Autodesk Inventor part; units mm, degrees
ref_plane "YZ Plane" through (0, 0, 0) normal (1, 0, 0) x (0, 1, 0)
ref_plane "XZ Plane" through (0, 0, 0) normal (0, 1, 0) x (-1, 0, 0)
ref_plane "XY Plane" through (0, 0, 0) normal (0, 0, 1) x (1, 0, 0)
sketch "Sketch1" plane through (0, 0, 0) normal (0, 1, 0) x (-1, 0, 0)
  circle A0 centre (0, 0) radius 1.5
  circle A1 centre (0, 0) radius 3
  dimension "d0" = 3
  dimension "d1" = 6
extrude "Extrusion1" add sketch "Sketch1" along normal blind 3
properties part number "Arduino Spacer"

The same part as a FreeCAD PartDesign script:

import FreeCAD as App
import Part
import Sketcher
Q = App.Units.Quantity

doc = App.newDocument("Part")
body = doc.addObject("PartDesign::Body", "Body")

# Sketch on XZ plane
sketch1 = body.newObject("Sketcher::SketchObject", "Sketch")
sketch1.AttachmentSupport = (doc.getObject("XZ_Plane"), [""])
sketch1.MapMode = "FlatFace"
sketch1.addGeometry(Part.Circle(App.Vector(0, 0, 0), App.Vector(0, 0, 1), 3), False)
sketch1.addGeometry(Part.Circle(App.Vector(0, 0, 0), App.Vector(0, 0, 1), 1.5), False)
sketch1.addConstraint(Sketcher.Constraint("Coincident", 0, 3, -1, 1))
sketch1.addConstraint(Sketcher.Constraint("Coincident", 1, 3, -1, 1))
sketch1.addConstraint(Sketcher.Constraint("Diameter", 0, Q("6 mm")))
sketch1.addConstraint(Sketcher.Constraint("Diameter", 1, Q("3 mm")))
pad1 = body.newObject("PartDesign::Pad", "Pad")
pad1.Profile = sketch1
pad1.Length = 3
pad1.Reversed = True

doc.recompute()
